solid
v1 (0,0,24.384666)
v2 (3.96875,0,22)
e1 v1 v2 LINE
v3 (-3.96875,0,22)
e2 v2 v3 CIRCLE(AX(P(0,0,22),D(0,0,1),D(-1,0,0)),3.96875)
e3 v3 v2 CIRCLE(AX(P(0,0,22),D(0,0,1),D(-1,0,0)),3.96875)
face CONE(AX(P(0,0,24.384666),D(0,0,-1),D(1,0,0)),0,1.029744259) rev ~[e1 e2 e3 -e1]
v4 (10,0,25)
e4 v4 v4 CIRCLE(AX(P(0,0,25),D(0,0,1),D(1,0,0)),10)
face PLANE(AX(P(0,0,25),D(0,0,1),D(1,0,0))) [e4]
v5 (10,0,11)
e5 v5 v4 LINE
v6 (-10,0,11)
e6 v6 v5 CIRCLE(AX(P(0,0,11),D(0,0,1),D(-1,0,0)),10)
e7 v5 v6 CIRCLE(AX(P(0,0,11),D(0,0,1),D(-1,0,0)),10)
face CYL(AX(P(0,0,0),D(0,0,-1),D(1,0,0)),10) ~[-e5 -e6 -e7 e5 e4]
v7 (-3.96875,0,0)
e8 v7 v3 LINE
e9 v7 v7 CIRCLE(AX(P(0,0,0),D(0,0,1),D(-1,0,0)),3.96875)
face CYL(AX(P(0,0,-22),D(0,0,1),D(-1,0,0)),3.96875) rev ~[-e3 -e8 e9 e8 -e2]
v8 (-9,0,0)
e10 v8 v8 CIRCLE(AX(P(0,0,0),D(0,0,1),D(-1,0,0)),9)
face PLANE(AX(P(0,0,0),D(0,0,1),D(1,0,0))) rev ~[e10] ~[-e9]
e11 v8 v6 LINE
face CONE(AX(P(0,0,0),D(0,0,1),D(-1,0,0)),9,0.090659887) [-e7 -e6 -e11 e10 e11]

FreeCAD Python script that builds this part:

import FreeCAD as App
import Part
import Sketcher

V = App.Vector
Q = App.Units.Quantity

doc = App.newDocument("Part")
body = doc.addObject("PartDesign::Body", "Body")

sketch1 = body.newObject("Sketcher::SketchObject", "Sketch")
sketch1.AttachmentSupport = (doc.getObject("XY_Plane"), [""])
sketch1.MapMode = "FlatFace"
sketch1.addGeometry(Part.Circle(V(0, 0, 0), V(0, 0, 1), 10), False)
sketch1.addConstraint(Sketcher.Constraint("Coincident", 0, 3, -1, 1))
sketch1.addConstraint(Sketcher.Constraint("Diameter", 0, Q("20 mm")))
pad1 = body.newObject("PartDesign::Pad", "Pad")
pad1.Profile = sketch1
pad1.Length = 25

sketch2 = body.newObject("Sketcher::SketchObject", "Sketch001")
sketch2.AttachmentSupport = (doc.getObject("XY_Plane"), [""])
sketch2.MapMode = "FlatFace"
sketch2.addGeometry(Part.Circle(V(0, 0, 0), V(0, 0, 1), 3.96875), False)
sketch2.addConstraint(Sketcher.Constraint("Coincident", 0, 3, -1, 1))
sketch2.addConstraint(Sketcher.Constraint("Diameter", 0, Q("7.9375 mm")))
doc.recompute()
hole = body.newObject("PartDesign::Hole", "Hole")
hole.Profile = sketch2
hole.ThreadType = "None"
hole.Diameter = 7.9375
hole.DepthType = "Dimension"
hole.Depth = 22
hole.DrillPoint = "Angled"
hole.DrillPointAngle = 118
hole.Reversed = True

sketch3 = body.newObject("Sketcher::SketchObject", "Sketch002")
sketch3.AttachmentSupport = (doc.getObject("XZ_Plane"), [""])
sketch3.MapMode = "FlatFace"
sketch3.addGeometry(Part.LineSegment(V(-10, 11, 0), V(-10, 0, 0)), False)
sketch3.addGeometry(Part.LineSegment(V(-10, 0, 0), V(-9, 0, 0)), False)
sketch3.addGeometry(Part.LineSegment(V(-9, 0, 0), V(-10, 11, 0)), False)
sketch3.addConstraint(Sketcher.Constraint("Coincident", 0, 2, 1, 1))
sketch3.addConstraint(Sketcher.Constraint("Coincident", 1, 2, 2, 1))
sketch3.addConstraint(Sketcher.Constraint("Coincident", 2, 2, 0, 1))
sketch3.addConstraint(Sketcher.Constraint("Vertical", 0))
sketch3.addConstraint(Sketcher.Constraint("Horizontal", 1))
sketch3.addConstraint(Sketcher.Constraint("PointOnObject", 0, 2, -1))
sketch3.addConstraint(Sketcher.Constraint("DistanceX", 1, 1, 1, 2, Q("1 mm")))
sketch3.addConstraint(Sketcher.Constraint("DistanceY", 0, 2, 0, 1, Q("11 mm")))
sketch3.addConstraint(Sketcher.Constraint("DistanceX", 0, 2, -1, 1, Q("10 mm")))
groove = body.newObject("PartDesign::Groove", "Groove")
groove.Profile = sketch3
groove.ReferenceAxis = (sketch3, ["V_Axis"])
groove.Angle = 360

doc.recompute()
